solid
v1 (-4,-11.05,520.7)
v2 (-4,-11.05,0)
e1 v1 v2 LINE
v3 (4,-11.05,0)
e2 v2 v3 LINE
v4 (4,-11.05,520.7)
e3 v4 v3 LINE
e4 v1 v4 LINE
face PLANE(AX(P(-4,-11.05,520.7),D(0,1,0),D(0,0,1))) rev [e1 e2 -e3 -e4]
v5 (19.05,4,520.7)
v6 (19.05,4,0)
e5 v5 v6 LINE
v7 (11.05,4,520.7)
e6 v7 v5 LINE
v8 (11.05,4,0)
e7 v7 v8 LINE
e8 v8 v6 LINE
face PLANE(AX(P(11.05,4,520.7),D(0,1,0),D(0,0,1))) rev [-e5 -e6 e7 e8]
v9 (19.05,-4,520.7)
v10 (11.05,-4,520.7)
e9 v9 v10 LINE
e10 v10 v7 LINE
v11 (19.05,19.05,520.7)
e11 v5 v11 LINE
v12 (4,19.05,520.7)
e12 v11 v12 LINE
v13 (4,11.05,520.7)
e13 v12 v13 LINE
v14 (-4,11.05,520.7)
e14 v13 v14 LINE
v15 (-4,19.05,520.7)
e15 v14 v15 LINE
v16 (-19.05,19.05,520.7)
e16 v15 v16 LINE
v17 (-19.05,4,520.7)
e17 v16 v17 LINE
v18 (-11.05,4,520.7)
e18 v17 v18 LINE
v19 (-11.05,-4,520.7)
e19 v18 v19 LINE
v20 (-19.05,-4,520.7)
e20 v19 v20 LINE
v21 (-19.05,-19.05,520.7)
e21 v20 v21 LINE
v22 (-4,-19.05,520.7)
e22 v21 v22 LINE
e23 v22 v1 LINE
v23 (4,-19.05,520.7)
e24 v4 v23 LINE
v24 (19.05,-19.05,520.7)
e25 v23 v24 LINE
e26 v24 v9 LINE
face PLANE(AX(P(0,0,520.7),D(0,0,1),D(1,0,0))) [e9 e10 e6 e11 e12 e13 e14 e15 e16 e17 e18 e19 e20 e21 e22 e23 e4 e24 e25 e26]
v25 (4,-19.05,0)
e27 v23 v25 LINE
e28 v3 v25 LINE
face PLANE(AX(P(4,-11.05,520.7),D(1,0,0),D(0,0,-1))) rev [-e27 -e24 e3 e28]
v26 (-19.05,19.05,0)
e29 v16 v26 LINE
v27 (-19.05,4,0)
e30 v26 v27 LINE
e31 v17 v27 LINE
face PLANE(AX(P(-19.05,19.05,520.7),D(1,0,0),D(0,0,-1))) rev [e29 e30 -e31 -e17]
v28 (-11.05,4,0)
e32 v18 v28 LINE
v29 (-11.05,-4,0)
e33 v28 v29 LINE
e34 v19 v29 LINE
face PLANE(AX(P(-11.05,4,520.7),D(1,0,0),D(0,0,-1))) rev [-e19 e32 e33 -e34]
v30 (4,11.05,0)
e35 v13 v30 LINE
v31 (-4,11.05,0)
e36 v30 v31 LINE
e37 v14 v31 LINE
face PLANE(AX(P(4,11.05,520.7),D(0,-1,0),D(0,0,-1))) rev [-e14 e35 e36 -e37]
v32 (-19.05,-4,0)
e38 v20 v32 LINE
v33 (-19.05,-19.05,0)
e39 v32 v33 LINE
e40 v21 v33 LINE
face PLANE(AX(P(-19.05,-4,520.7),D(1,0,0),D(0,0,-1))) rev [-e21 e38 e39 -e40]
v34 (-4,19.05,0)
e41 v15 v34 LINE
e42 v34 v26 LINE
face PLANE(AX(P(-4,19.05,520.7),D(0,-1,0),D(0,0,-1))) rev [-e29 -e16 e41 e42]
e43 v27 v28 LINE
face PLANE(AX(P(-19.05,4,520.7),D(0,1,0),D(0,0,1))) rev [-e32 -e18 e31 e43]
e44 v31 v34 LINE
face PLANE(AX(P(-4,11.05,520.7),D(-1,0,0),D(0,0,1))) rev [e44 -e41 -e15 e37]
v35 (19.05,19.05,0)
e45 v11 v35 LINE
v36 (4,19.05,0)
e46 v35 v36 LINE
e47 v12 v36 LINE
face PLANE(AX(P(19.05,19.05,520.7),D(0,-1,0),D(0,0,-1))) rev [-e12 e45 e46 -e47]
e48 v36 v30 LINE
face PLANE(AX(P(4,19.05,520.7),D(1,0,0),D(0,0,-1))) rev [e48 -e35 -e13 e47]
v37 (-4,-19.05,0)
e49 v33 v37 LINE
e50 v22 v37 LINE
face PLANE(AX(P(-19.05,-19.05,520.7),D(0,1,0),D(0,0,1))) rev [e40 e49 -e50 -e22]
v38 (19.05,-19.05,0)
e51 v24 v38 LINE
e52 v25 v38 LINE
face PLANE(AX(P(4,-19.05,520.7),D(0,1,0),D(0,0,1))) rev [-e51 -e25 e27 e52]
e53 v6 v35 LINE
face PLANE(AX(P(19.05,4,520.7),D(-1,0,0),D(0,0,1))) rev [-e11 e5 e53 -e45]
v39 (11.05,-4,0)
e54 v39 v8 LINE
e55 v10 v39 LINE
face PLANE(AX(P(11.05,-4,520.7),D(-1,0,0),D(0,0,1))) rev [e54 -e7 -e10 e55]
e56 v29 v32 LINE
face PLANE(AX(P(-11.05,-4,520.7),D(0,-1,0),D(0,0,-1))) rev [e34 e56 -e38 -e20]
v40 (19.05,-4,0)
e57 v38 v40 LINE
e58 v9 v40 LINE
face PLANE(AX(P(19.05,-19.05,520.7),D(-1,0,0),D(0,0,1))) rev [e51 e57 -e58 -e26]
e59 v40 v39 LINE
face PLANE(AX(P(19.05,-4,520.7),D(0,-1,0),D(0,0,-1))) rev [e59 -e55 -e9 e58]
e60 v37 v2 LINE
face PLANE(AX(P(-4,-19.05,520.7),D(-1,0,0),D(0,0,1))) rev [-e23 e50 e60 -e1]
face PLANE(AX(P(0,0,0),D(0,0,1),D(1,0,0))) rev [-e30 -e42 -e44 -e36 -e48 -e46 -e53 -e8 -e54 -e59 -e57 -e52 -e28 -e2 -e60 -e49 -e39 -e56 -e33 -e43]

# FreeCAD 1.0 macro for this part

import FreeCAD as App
import Part
import Sketcher
from FreeCAD import Vector
Q = App.Units.Quantity

doc = App.newDocument("Part")
params = doc.addObject("Spreadsheet::Sheet", "Params")
for row, (alias, value) in enumerate([
    ("sketch1_width", "8 mm"),
    ("sketch1_width2", "15.05 mm"),
    ("pad1_length", "520.7 mm"),
], start=1):
    params.set(f"A{row}", alias)
    params.set(f"B{row}", "=" + value)
    params.setAlias(f"B{row}", alias)

body = doc.addObject("PartDesign::Body", "Body")

# Sketch on XY plane
sketch1 = doc.addObject("Sketcher::SketchObject", "Sketch")
body.addObject(sketch1)
sketch1.AttachmentSupport = (doc.XY_Plane, [""])
sketch1.MapMode = "FlatFace"
sketch1.addGeometry([
    Part.LineSegment(Vector(-19, -19, 0), Vector(-4, -19, 0)),  # 0
    Part.LineSegment(Vector(-4, -19, 0), Vector(-4, -11, 0)),  # 1
    Part.LineSegment(Vector(-4, -11, 0), Vector(4, -11, 0)),  # 2
    Part.LineSegment(Vector(4, -11, 0), Vector(4, -19, 0)),  # 3
    Part.LineSegment(Vector(4, -19, 0), Vector(19, -19, 0)),  # 4
    Part.LineSegment(Vector(19, -19, 0), Vector(19, -4, 0)),  # 5
    Part.LineSegment(Vector(19, -4, 0), Vector(11, -4, 0)),  # 6
    Part.LineSegment(Vector(11, -4, 0), Vector(11, 4, 0)),  # 7
    Part.LineSegment(Vector(11, 4, 0), Vector(19, 4, 0)),  # 8
    Part.LineSegment(Vector(19, 4, 0), Vector(19, 19, 0)),  # 9
    Part.LineSegment(Vector(19, 19, 0), Vector(4, 19, 0)),  # 10
    Part.LineSegment(Vector(4, 19, 0), Vector(4, 11, 0)),  # 11
    Part.LineSegment(Vector(4, 11, 0), Vector(-4, 11, 0)),  # 12
    Part.LineSegment(Vector(-4, 11, 0), Vector(-4, 19, 0)),  # 13
    Part.LineSegment(Vector(-4, 19, 0), Vector(-19, 19, 0)),  # 14
    Part.LineSegment(Vector(-19, 19, 0), Vector(-19, 4, 0)),  # 15
    Part.LineSegment(Vector(-19, 4, 0), Vector(-11, 4, 0)),  # 16
    Part.LineSegment(Vector(-11, 4, 0), Vector(-11, -4, 0)),  # 17
    Part.LineSegment(Vector(-11, -4, 0), Vector(-19, -4, 0)),  # 18
    Part.LineSegment(Vector(-19, -4, 0), Vector(-19, -19, 0)),  # 19
], False)
sketch1.addConstraint([
    Sketcher.Constraint("Coincident", 0, 2, 1, 1),
    Sketcher.Constraint("Coincident", 1, 2, 2, 1),
    Sketcher.Constraint("Coincident", 2, 2, 3, 1),
    Sketcher.Constraint("Coincident", 3, 2, 4, 1),
    Sketcher.Constraint("Coincident", 4, 2, 5, 1),
    Sketcher.Constraint("Coincident", 5, 2, 6, 1),
    Sketcher.Constraint("Coincident", 6, 2, 7, 1),
    Sketcher.Constraint("Coincident", 7, 2, 8, 1),
    Sketcher.Constraint("Coincident", 8, 2, 9, 1),
    Sketcher.Constraint("Coincident", 9, 2, 10, 1),
    Sketcher.Constraint("Coincident", 10, 2, 11, 1),
    Sketcher.Constraint("Coincident", 11, 2, 12, 1),
    Sketcher.Constraint("Coincident", 12, 2, 13, 1),
    Sketcher.Constraint("Coincident", 13, 2, 14, 1),
    Sketcher.Constraint("Coincident", 14, 2, 15, 1),
    Sketcher.Constraint("Coincident", 15, 2, 16, 1),
    Sketcher.Constraint("Coincident", 16, 2, 17, 1),
    Sketcher.Constraint("Coincident", 17, 2, 18, 1),
    Sketcher.Constraint("Coincident", 18, 2, 19, 1),
    Sketcher.Constraint("Coincident", 19, 2, 0, 1),
    Sketcher.Constraint("Horizontal", 0),
    Sketcher.Constraint("Vertical", 1),
    Sketcher.Constraint("Horizontal", 2),
    Sketcher.Constraint("Vertical", 3),
    Sketcher.Constraint("Horizontal", 4),
    Sketcher.Constraint("Vertical", 5),
    Sketcher.Constraint("Horizontal", 6),
    Sketcher.Constraint("Vertical", 7),
    Sketcher.Constraint("Horizontal", 8),
    Sketcher.Constraint("Vertical", 9),
    Sketcher.Constraint("Horizontal", 10),
    Sketcher.Constraint("Vertical", 11),
    Sketcher.Constraint("Horizontal", 12),
    Sketcher.Constraint("Vertical", 13),
    Sketcher.Constraint("Horizontal", 14),
    Sketcher.Constraint("Vertical", 15),
    Sketcher.Constraint("Horizontal", 16),
    Sketcher.Constraint("Vertical", 17),
    Sketcher.Constraint("Horizontal", 18),
    Sketcher.Constraint("Vertical", 19),
    Sketcher.Constraint("Symmetric", 0, 2, 10, 2, -1, 1),
    Sketcher.Constraint("Symmetric", 2, 2, 12, 2, -1, 1),
    Sketcher.Constraint("Symmetric", 4, 2, 14, 2, -1, 1),
    Sketcher.Constraint("Symmetric", 6, 2, 16, 2, -1, 1),
    Sketcher.Constraint("Symmetric", 8, 2, 18, 2, -1, 1),
    Sketcher.Constraint("Symmetric", 0, 2, 3, 2, -2),
    Sketcher.Constraint("Symmetric", 8, 2, 15, 2, -2),
    Sketcher.Constraint("Equal", 2, 6),
    Sketcher.Constraint("Equal", 18, 1),
    Sketcher.Constraint("Equal", 14, 5),
    Sketcher.Constraint("Equal", 3, 7),
    Sketcher.Constraint("DistanceX", 2, 1, 2, 2, Q("8 mm")),
    Sketcher.Constraint("DistanceX", 0, 1, 0, 2, Q("15.05 mm")),
])
sketch1.setExpression("Constraints[51]", "Params.sketch1_width")
sketch1.setExpression("Constraints[52]", "Params.sketch1_width2")
pad1 = doc.addObject("PartDesign::Pad", "Pad")
body.addObject(pad1)
pad1.Profile = sketch1
pad1.setExpression("Length", "Params.pad1_length")

doc.recompute()
